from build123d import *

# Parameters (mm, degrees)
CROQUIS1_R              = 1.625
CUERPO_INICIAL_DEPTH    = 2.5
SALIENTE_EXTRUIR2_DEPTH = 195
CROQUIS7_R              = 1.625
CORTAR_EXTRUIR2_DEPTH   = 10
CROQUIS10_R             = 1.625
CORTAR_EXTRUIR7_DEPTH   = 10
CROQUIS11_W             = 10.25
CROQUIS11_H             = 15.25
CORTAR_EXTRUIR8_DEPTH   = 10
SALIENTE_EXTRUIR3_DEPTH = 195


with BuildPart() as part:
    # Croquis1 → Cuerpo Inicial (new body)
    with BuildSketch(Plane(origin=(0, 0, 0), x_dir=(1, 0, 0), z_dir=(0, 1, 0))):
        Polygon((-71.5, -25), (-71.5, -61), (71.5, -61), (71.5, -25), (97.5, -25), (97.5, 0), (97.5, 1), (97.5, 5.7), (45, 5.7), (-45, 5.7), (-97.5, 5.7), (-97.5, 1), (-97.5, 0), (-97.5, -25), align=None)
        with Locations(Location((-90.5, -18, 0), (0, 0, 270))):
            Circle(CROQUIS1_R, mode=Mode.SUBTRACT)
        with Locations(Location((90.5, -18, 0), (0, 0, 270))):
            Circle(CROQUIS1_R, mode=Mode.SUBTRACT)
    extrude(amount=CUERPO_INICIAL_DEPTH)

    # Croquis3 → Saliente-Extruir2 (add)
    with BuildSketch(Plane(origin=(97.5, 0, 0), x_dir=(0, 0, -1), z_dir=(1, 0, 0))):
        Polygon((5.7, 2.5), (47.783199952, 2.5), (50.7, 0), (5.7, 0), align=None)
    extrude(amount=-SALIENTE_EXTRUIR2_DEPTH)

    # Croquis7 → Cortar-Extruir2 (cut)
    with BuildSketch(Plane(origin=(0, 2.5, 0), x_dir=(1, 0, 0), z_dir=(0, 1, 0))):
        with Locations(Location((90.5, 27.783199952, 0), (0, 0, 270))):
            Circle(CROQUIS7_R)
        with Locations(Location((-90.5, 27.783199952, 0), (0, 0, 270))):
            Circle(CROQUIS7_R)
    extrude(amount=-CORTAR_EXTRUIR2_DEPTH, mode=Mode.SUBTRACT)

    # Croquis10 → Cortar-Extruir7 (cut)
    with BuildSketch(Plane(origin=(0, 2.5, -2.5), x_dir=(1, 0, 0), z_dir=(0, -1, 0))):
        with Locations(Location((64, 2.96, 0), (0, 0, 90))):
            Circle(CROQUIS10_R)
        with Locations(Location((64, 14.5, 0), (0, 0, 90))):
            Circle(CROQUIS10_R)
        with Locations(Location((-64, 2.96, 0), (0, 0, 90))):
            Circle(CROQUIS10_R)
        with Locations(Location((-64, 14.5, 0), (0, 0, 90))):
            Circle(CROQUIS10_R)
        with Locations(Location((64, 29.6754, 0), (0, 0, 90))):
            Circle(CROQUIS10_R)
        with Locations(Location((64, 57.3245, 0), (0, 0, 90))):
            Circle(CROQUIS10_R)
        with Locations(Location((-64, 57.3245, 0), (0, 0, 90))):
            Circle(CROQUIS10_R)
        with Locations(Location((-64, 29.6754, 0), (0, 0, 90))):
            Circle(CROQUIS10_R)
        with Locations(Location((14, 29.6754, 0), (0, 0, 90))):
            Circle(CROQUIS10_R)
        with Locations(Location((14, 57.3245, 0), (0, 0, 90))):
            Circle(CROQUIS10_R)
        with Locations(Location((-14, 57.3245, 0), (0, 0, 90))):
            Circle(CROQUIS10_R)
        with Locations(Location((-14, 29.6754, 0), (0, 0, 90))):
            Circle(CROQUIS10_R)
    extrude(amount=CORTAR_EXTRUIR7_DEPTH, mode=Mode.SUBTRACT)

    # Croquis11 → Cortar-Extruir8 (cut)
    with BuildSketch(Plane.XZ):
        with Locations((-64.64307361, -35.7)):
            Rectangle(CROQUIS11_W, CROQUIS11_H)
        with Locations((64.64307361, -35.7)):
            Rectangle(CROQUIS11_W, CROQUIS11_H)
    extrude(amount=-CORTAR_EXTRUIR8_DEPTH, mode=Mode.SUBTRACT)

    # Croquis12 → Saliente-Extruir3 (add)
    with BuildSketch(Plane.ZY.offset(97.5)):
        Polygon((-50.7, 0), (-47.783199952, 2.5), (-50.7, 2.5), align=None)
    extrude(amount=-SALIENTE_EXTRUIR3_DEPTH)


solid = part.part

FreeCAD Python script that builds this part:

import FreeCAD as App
import Part
import Sketcher
Q = App.Units.Quantity


def add_polygon(sketch, points):
    """Adds a closed chain of lines whose ends are joined by coincident constraints."""
    first, n = sketch.GeometryCount, len(points)
    for a, b in zip(points, points[1:] + points[:1]):
        sketch.addGeometry(Part.LineSegment(App.Vector(*a, 0), App.Vector(*b, 0)), False)
    for i in range(n):
        sketch.addConstraint(Sketcher.Constraint("Coincident", first + i, 2, first + (i + 1) % n, 1))

doc = App.newDocument("Part")
body = doc.addObject("PartDesign::Body", "Body")

sketch1 = body.newObject("Sketcher::SketchObject", "Sketch")
sketch1.AttachmentSupport = (doc.getObject("XZ_Plane"), [""])
sketch1.MapMode = "FlatFace"
add_polygon(sketch1, [(-71.5, 25), (-71.5, 61), (71.5, 61), (71.5, 25), (97.5, 25), (97.5, -5.7), (-97.5, -5.7), (-97.5, 25)])
sketch1.addGeometry(Part.Circle(App.Vector(-90.5, 18, 0), App.Vector(0, 0, 1), 1.6), False)
sketch1.addGeometry(Part.Circle(App.Vector(90.5, 18, 0), App.Vector(0, 0, 1), 1.6), False)
sketch1.addConstraint(Sketcher.Constraint("Vertical", 0))
sketch1.addConstraint(Sketcher.Constraint("Horizontal", 1))
sketch1.addConstraint(Sketcher.Constraint("Vertical", 2))
sketch1.addConstraint(Sketcher.Constraint("Horizontal", 3))
sketch1.addConstraint(Sketcher.Constraint("Vertical", 4))
sketch1.addConstraint(Sketcher.Constraint("Horizontal", 5))
sketch1.addConstraint(Sketcher.Constraint("Vertical", 6))
sketch1.addConstraint(Sketcher.Constraint("Horizontal", 7))
sketch1.addConstraint(Sketcher.Constraint("Equal", 8, 9))
sketch1.addConstraint(Sketcher.Constraint("Symmetric", 8, 3, 9, 3, -2))
sketch1.addConstraint(Sketcher.Constraint("Symmetric", 3, 2, 6, 2, -2))
sketch1.addConstraint(Sketcher.Constraint("Equal", 3, 7))
sketch1.addConstraint(Sketcher.Constraint("Diameter", 8, Q("3.25 mm")))
sketch1.addConstraint(Sketcher.Constraint("DistanceX", 1, 1, 1, 2, Q("143 mm")))
sketch1.addConstraint(Sketcher.Constraint("DistanceX", 3, 1, 3, 2, Q("26 mm")))
sketch1.addConstraint(Sketcher.Constraint("DistanceY", 0, 1, 0, 2, Q("36 mm")))
sketch1.addConstraint(Sketcher.Constraint("DistanceY", 4, 2, 4, 1, Q("30.7 mm")))
sketch1.addConstraint(Sketcher.Constraint("DistanceY", -1, 1, 8, 3, Q("18 mm")))
sketch1.addConstraint(Sketcher.Constraint("DistanceY", -1, 1, 0, 2, Q("61 mm")))
sketch1.addConstraint(Sketcher.Constraint("DistanceX", 8, 3, 9, 3, Q("181 mm")))
pad1 = body.newObject("PartDesign::Pad", "Pad")
pad1.Profile = sketch1
pad1.Length = 2.5
pad1.Reversed = True

sketch2 = body.newObject("Sketcher::SketchObject", "Sketch001")
sketch2.AttachmentSupport = (doc.getObject("YZ_Plane"), [""])
sketch2.MapMode = "FlatFace"
sketch2.AttachmentOffset = App.Placement(App.Vector(0, 0, 97.5), App.Rotation())
add_polygon(sketch2, [(2.5, -47.8), (2.5, -5.7), (0, -5.7), (0, -50.7)])
sketch2.addConstraint(Sketcher.Constraint("Vertical", 0))
sketch2.addConstraint(Sketcher.Constraint("Horizontal", 1))
sketch2.addConstraint(Sketcher.Constraint("Vertical", 2))
sketch2.addConstraint(Sketcher.Constraint("PointOnObject", 1, 2, -2))
sketch2.addConstraint(Sketcher.Constraint("DistanceY", 2, 2, 2, 1, Q("45 mm")))
sketch2.addConstraint(Sketcher.Constraint("DistanceX", 1, 2, 1, 1, Q("2.5 mm")))
sketch2.addConstraint(Sketcher.Constraint("Angle", 3, Q("49.4 deg")))
sketch2.addConstraint(Sketcher.Constraint("DistanceY", 0, 2, -1, 1, Q("5.7 mm")))
pad2 = body.newObject("PartDesign::Pad", "Pad001")
pad2.Profile = sketch2
pad2.Length = 195
pad2.Reversed = True

sketch3 = body.newObject("Sketcher::SketchObject", "Sketch002")
sketch3.AttachmentSupport = (doc.getObject("XZ_Plane"), [""])
sketch3.MapMode = "FlatFace"
sketch3.AttachmentOffset = App.Placement(App.Vector(0, 0, -2.5), App.Rotation())
sketch3.addGeometry(Part.Circle(App.Vector(90.5, -27.8, 0), App.Vector(0, 0, 1), 1.6), False)
sketch3.addGeometry(Part.Circle(App.Vector(-90.5, -27.8, 0), App.Vector(0, 0, 1), 1.6), False)
sketch3.addConstraint(Sketcher.Constraint("Equal", 0, 1))
sketch3.addConstraint(Sketcher.Constraint("Symmetric", 0, 3, 1, 3, -2))
sketch3.addConstraint(Sketcher.Constraint("Diameter", 0, Q("3.25 mm")))
sketch3.addConstraint(Sketcher.Constraint("DistanceX", 1, 3, 0, 3, Q("181 mm")))
sketch3.addConstraint(Sketcher.Constraint("DistanceY", 0, 3, -1, 1, Q("27.7832 mm")))
pocket1 = body.newObject("PartDesign::Pocket", "Pocket")
pocket1.Profile = sketch3
pocket1.Length = 10
pocket1.Reversed = True

sketch4 = body.newObject("Sketcher::SketchObject", "Sketch003")
sketch4.AttachmentSupport = (doc.getObject("XZ_Plane"), [""])
sketch4.MapMode = "FlatFace"
sketch4.AttachmentOffset = App.Placement(App.Vector(0, 0, -2.5), App.Rotation())
sketch4.addGeometry(Part.Circle(App.Vector(64, 0.5, 0), App.Vector(0, 0, 1), 1.6), False)
sketch4.addGeometry(Part.Circle(App.Vector(64, 12, 0), App.Vector(0, 0, 1), 1.6), False)
sketch4.addGeometry(Part.Circle(App.Vector(-64, 0.5, 0), App.Vector(0, 0, 1), 1.6), False)
sketch4.addGeometry(Part.Circle(App.Vector(-64, 12, 0), App.Vector(0, 0, 1), 1.6), False)
sketch4.addGeometry(Part.Circle(App.Vector(64, 27.2, 0), App.Vector(0, 0, 1), 1.6), False)
sketch4.addGeometry(Part.Circle(App.Vector(64, 54.8, 0), App.Vector(0, 0, 1), 1.6), False)
sketch4.addGeometry(Part.Circle(App.Vector(-64, 54.8, 0), App.Vector(0, 0, 1), 1.6), False)
sketch4.addGeometry(Part.Circle(App.Vector(-64, 27.2, 0), App.Vector(0, 0, 1), 1.6), False)
sketch4.addGeometry(Part.Circle(App.Vector(14, 27.2, 0), App.Vector(0, 0, 1), 1.6), False)
sketch4.addGeometry(Part.Circle(App.Vector(14, 54.8, 0), App.Vector(0, 0, 1), 1.6), False)
sketch4.addGeometry(Part.Circle(App.Vector(-14, 54.8, 0), App.Vector(0, 0, 1), 1.6), False)
sketch4.addGeometry(Part.Circle(App.Vector(-14, 27.2, 0), App.Vector(0, 0, 1), 1.6), False)
sketch4.addConstraint(Sketcher.Constraint("Equal", 0, 1))
sketch4.addConstraint(Sketcher.Constraint("Equal", 1, 2))
sketch4.addConstraint(Sketcher.Constraint("Equal", 2, 3))
sketch4.addConstraint(Sketcher.Constraint("Equal", 3, 4))
sketch4.addConstraint(Sketcher.Constraint("Equal", 4, 5))
sketch4.addConstraint(Sketcher.Constraint("Equal", 5, 6))
sketch4.addConstraint(Sketcher.Constraint("Equal", 6, 7))
sketch4.addConstraint(Sketcher.Constraint("Equal", 7, 8))
sketch4.addConstraint(Sketcher.Constraint("Equal", 8, 9))
sketch4.addConstraint(Sketcher.Constraint("Equal", 9, 10))
sketch4.addConstraint(Sketcher.Constraint("Equal", 10, 11))
sketch4.addConstraint(Sketcher.Constraint("Symmetric", 0, 3, 2, 3, -2))
sketch4.addConstraint(Sketcher.Constraint("Symmetric", 1, 3, 3, 3, -2))
sketch4.addConstraint(Sketcher.Constraint("Symmetric", 5, 3, 6, 3, -2))
sketch4.addConstraint(Sketcher.Constraint("Symmetric", 4, 3, 7, 3, -2))
sketch4.addConstraint(Sketcher.Constraint("Symmetric", 9, 3, 10, 3, -2))
sketch4.addConstraint(Sketcher.Constraint("Symmetric", 8, 3, 11, 3, -2))
sketch4.addConstraint(Sketcher.Constraint("Horizontal", 7, 3, 8, 3))
sketch4.addConstraint(Sketcher.Constraint("Horizontal", 6, 3, 9, 3))
sketch4.addConstraint(Sketcher.Constraint("Vertical", 0, 3, 1, 3))
sketch4.addConstraint(Sketcher.Constraint("Vertical", 1, 3, 4, 3))
sketch4.addConstraint(Sketcher.Constraint("Vertical", 4, 3, 5, 3))
sketch4.addConstraint(Sketcher.Constraint("Vertical", 8, 3, 9, 3))
sketch4.addConstraint(Sketcher.Constraint("Diameter", 0, Q("3.25 mm")))
sketch4.addConstraint(Sketcher.Constraint("DistanceX", -1, 1, 0, 3, Q("64 mm")))
sketch4.addConstraint(Sketcher.Constraint("DistanceY", -1, 1, 1, 3, Q("12 mm")))
sketch4.addConstraint(Sketcher.Constraint("DistanceX", -1, 1, 8, 3, Q("14 mm")))
sketch4.addConstraint(Sketcher.Constraint("DistanceY", -1, 1, 0, 3, Q("0.46 mm")))
sketch4.addConstraint(Sketcher.Constraint("DistanceY", -1, 1, 4, 3, Q("27.1754 mm")))
sketch4.addConstraint(Sketcher.Constraint("DistanceY", -1, 1, 5, 3, Q("54.8245 mm")))
pocket2 = body.newObject("PartDesign::Pocket", "Pocket001")
pocket2.Profile = sketch4
pocket2.Length = 10
pocket2.Reversed = True

sketch5 = body.newObject("Sketcher::SketchObject", "Sketch004")
sketch5.AttachmentSupport = (doc.getObject("XZ_Plane"), [""])
sketch5.MapMode = "FlatFace"
add_polygon(sketch5, [(-70, -28), (-70, -43), (-60, -43), (-60, -28)])
add_polygon(sketch5, [(60, -28), (60, -43), (70, -43), (70, -28)])
sketch5.addConstraint(Sketcher.Constraint("Vertical", 0))
sketch5.addConstraint(Sketcher.Constraint("Horizontal", 1))
sketch5.addConstraint(Sketcher.Constraint("Vertical", 2))
sketch5.addConstraint(Sketcher.Constraint("Horizontal", 3))
sketch5.addConstraint(Sketcher.Constraint("Vertical", 4))
sketch5.addConstraint(Sketcher.Constraint("Horizontal", 5))
sketch5.addConstraint(Sketcher.Constraint("Vertical", 6))
sketch5.addConstraint(Sketcher.Constraint("Horizontal", 7))
sketch5.addConstraint(Sketcher.Constraint("Symmetric", 1, 2, 4, 2, -2))
sketch5.addConstraint(Sketcher.Constraint("Symmetric", 3, 2, 6, 2, -2))
sketch5.addConstraint(Sketcher.Constraint("DistanceX", 1, 1, 1, 2, Q("10.25 mm")))
sketch5.addConstraint(Sketcher.Constraint("DistanceY", 0, 2, 0, 1, Q("15.25 mm")))
sketch5.addConstraint(Sketcher.Constraint("DistanceY", 0, 2, -1, 1, Q("43.325 mm")))
sketch5.addConstraint(Sketcher.Constraint("DistanceX", 0, 2, -1, 1, Q("69.768074 mm")))
pocket3 = body.newObject("PartDesign::Pocket", "Pocket002")
pocket3.Profile = sketch5
pocket3.Length = 10

sketch6 = body.newObject("Sketcher::SketchObject", "Sketch005")
sketch6.AttachmentSupport = (doc.getObject("YZ_Plane"), [""])
sketch6.MapMode = "FlatFace"
sketch6.AttachmentOffset = App.Placement(App.Vector(0, 0, -97.5), App.Rotation())
add_polygon(sketch6, [(0, -50.7), (2.5, -47.8), (2.5, -50.7)])
sketch6.addConstraint(Sketcher.Constraint("Vertical", 1))
sketch6.addConstraint(Sketcher.Constraint("Horizontal", 2))
sketch6.addConstraint(Sketcher.Constraint("PointOnObject", 2, 2, -2))
sketch6.addConstraint(Sketcher.Constraint("DistanceX", 2, 2, 2, 1, Q("2.5 mm")))
sketch6.addConstraint(Sketcher.Constraint("Angle", 0, Q("49.4 deg")))
sketch6.addConstraint(Sketcher.Constraint("DistanceY", 1, 2, -1, 1, Q("50.7 mm")))
pad3 = body.newObject("PartDesign::Pad", "Pad002")
pad3.Profile = sketch6
pad3.Length = 195

doc.recompute()
